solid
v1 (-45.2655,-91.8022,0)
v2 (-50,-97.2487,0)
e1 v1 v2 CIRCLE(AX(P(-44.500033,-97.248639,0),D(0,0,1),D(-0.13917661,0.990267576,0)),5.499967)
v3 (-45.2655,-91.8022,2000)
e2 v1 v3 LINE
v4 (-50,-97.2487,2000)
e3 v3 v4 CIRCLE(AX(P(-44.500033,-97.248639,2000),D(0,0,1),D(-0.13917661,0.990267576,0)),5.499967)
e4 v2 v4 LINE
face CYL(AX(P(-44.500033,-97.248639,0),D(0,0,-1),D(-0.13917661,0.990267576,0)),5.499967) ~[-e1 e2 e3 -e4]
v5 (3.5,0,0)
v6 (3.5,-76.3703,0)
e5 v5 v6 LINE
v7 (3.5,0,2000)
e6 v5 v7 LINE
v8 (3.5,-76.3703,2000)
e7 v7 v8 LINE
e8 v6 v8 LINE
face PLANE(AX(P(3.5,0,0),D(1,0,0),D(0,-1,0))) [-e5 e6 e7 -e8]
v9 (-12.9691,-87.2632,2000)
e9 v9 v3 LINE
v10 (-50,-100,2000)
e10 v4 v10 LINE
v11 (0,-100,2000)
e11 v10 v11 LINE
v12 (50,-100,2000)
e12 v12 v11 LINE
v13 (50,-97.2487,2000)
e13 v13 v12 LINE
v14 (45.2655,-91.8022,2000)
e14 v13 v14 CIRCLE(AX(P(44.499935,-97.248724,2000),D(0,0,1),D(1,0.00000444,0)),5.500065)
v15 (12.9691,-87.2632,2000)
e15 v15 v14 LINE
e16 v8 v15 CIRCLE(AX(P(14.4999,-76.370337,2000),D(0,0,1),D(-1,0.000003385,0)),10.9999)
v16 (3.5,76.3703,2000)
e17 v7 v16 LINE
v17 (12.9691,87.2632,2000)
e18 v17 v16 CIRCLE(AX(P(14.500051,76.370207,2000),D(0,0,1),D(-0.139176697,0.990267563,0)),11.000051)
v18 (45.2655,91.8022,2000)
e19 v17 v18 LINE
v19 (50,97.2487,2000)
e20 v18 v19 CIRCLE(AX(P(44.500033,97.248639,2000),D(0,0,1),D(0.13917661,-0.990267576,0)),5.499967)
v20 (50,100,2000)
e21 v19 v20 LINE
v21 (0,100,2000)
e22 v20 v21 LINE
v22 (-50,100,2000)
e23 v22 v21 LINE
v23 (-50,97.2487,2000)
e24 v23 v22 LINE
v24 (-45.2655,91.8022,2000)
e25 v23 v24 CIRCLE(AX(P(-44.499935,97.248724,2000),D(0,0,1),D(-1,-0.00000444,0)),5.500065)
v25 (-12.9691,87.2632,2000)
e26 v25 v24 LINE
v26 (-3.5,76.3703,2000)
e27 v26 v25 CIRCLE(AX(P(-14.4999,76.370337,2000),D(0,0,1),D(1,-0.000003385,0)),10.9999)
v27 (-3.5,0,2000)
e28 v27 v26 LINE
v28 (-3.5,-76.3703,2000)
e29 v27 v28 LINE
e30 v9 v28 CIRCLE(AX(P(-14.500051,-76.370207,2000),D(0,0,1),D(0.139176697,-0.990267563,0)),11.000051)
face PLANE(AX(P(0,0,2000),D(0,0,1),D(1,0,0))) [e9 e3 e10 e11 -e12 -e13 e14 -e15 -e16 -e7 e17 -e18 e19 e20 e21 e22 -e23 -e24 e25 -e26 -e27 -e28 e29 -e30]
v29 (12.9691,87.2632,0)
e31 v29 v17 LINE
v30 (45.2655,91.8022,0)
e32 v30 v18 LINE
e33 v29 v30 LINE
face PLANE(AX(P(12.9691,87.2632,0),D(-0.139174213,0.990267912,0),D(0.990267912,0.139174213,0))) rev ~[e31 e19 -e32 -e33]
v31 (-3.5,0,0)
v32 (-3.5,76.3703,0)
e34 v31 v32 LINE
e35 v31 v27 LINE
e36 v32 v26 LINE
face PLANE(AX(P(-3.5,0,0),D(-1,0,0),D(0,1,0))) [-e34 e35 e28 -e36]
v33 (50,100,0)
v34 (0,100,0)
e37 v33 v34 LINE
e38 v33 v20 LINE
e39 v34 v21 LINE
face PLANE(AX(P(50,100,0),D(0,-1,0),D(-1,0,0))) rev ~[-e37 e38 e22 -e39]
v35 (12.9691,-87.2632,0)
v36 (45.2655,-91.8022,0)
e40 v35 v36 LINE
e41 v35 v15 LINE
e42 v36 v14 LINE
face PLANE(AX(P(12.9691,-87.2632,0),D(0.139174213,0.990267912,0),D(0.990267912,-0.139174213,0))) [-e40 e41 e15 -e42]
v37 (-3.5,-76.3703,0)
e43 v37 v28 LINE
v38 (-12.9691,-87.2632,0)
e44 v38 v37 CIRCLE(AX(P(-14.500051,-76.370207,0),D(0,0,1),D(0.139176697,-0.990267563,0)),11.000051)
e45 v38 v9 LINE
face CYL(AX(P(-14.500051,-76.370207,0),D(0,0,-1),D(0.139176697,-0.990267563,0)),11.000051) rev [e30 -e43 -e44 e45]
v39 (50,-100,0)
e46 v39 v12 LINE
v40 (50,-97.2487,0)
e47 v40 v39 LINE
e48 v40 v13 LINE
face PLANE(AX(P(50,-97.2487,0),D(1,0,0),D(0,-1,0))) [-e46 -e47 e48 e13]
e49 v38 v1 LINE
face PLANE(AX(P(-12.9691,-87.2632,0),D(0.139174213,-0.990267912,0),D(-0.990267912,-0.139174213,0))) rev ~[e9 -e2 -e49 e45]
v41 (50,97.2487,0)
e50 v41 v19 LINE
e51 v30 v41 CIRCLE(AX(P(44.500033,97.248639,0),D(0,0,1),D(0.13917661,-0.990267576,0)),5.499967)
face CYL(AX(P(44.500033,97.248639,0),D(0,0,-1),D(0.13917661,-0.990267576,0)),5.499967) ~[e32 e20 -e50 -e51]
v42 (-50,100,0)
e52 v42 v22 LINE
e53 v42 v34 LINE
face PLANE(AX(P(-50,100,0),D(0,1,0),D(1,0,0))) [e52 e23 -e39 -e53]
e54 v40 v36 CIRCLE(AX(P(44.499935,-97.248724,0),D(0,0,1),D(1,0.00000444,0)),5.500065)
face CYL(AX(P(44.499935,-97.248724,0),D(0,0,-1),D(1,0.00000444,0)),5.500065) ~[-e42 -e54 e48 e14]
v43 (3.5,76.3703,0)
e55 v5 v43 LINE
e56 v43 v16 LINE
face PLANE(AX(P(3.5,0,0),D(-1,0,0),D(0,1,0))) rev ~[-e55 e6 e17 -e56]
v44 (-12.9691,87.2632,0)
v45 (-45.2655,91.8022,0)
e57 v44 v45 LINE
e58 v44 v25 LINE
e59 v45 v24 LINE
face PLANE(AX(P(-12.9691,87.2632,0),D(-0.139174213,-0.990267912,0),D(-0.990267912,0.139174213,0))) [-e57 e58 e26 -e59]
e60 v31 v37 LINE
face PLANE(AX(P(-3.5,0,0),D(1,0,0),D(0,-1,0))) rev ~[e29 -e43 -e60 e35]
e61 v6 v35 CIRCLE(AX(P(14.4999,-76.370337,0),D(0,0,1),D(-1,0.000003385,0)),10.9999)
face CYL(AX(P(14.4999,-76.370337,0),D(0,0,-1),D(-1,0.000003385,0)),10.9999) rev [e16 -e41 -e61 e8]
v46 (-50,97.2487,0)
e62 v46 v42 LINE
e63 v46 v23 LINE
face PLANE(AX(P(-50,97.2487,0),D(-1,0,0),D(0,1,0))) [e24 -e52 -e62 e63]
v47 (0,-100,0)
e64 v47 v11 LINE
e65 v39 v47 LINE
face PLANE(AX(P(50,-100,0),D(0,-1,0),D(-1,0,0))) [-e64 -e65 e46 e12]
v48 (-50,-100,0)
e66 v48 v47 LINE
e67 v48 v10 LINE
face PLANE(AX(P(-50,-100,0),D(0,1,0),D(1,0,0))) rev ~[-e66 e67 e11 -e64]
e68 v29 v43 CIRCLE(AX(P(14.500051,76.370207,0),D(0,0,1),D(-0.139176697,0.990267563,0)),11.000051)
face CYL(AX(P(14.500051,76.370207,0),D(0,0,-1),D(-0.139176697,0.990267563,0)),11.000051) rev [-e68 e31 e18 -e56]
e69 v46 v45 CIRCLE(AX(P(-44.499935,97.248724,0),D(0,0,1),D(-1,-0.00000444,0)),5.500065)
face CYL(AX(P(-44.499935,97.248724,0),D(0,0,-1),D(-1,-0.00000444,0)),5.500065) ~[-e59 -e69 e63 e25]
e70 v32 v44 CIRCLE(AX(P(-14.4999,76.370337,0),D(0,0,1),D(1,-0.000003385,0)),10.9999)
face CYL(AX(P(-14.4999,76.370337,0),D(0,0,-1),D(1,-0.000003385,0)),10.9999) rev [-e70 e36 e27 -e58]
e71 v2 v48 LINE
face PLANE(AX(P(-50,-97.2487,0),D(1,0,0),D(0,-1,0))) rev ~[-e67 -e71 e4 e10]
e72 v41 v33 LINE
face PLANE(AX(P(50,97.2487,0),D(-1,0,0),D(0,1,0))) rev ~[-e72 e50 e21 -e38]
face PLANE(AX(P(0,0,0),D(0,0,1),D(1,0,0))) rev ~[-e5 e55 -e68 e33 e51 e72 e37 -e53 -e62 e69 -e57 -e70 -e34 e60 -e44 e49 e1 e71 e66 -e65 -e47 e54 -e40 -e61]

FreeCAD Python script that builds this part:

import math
import FreeCAD as App
import Part
import Sketcher
from FreeCAD import Vector
Q = App.Units.Quantity

doc = App.newDocument("Part")
body = doc.addObject("PartDesign::Body", "Body")

sketch1 = doc.addObject("Sketcher::SketchObject", "Sketch")
body.addObject(sketch1)
sketch1.AttachmentSupport = (doc.XY_Plane, [""])
sketch1.MapMode = "FlatFace"
sketch1.addGeometry(Part.LineSegment(Vector(-3.5, 76.4, 0), Vector(-3.5, -76.4, 0)), False)
sketch1.addGeometry(Part.ArcOfCircle(Part.Circle(Vector(-14.5, -76.4, 0), Vector(0, 0, 1), 11), math.radians(-82), math.radians(0)), False)
sketch1.addGeometry(Part.LineSegment(Vector(-13, -87.3, 0), Vector(-45.3, -91.8, 0)), False)
sketch1.addGeometry(Part.ArcOfCircle(Part.Circle(Vector(-44.5, -97.2, 0), Vector(0, 0, 1), 5.5), math.radians(98), math.radians(180)), False)
sketch1.addGeometry(Part.LineSegment(Vector(-50, -97.2, 0), Vector(-50, -100, 0)), False)
sketch1.addGeometry(Part.LineSegment(Vector(-50, -100, 0), Vector(50, -100, 0)), False)
sketch1.addGeometry(Part.LineSegment(Vector(50, -100, 0), Vector(50, -97.2, 0)), False)
sketch1.addGeometry(Part.ArcOfCircle(Part.Circle(Vector(44.5, -97.2, 0), Vector(0, 0, 1), 5.5), math.radians(0), math.radians(82)), False)
sketch1.addGeometry(Part.LineSegment(Vector(45.3, -91.8, 0), Vector(13, -87.3, 0)), False)
sketch1.addGeometry(Part.ArcOfCircle(Part.Circle(Vector(14.5, -76.4, 0), Vector(0, 0, 1), 11), math.radians(180), math.radians(262)), False)
sketch1.addGeometry(Part.LineSegment(Vector(3.5, -76.4, 0), Vector(3.5, 76.4, 0)), False)
sketch1.addGeometry(Part.ArcOfCircle(Part.Circle(Vector(14.5, 76.4, 0), Vector(0, 0, 1), 11), math.radians(98), math.radians(180)), False)
sketch1.addGeometry(Part.LineSegment(Vector(13, 87.3, 0), Vector(45.3, 91.8, 0)), False)
sketch1.addGeometry(Part.ArcOfCircle(Part.Circle(Vector(44.5, 97.2, 0), Vector(0, 0, 1), 5.5), math.radians(-82), math.radians(0)), False)
sketch1.addGeometry(Part.LineSegment(Vector(50, 97.2, 0), Vector(50, 100, 0)), False)
sketch1.addGeometry(Part.LineSegment(Vector(50, 100, 0), Vector(-50, 100, 0)), False)
sketch1.addGeometry(Part.LineSegment(Vector(-50, 100, 0), Vector(-50, 97.2, 0)), False)
sketch1.addGeometry(Part.ArcOfCircle(Part.Circle(Vector(-44.5, 97.2, 0), Vector(0, 0, 1), 5.5), math.radians(180), math.radians(262)), False)
sketch1.addGeometry(Part.LineSegment(Vector(-45.3, 91.8, 0), Vector(-13, 87.3, 0)), False)
sketch1.addGeometry(Part.ArcOfCircle(Part.Circle(Vector(-14.5, 76.4, 0), Vector(0, 0, 1), 11), math.radians(0), math.radians(82)), False)
sketch1.addConstraint(Sketcher.Constraint("Tangent", 0, 2, 1, 2))
sketch1.addConstraint(Sketcher.Constraint("Tangent", 1, 1, 2, 1))
sketch1.addConstraint(Sketcher.Constraint("Tangent", 2, 2, 3, 1))
sketch1.addConstraint(Sketcher.Constraint("Tangent", 3, 2, 4, 1))
sketch1.addConstraint(Sketcher.Constraint("Coincident", 4, 2, 5, 1))
sketch1.addConstraint(Sketcher.Constraint("Coincident", 5, 2, 6, 1))
sketch1.addConstraint(Sketcher.Constraint("Tangent", 6, 2, 7, 1))
sketch1.addConstraint(Sketcher.Constraint("Tangent", 7, 2, 8, 1))
sketch1.addConstraint(Sketcher.Constraint("Tangent", 8, 2, 9, 2))
sketch1.addConstraint(Sketcher.Constraint("Tangent", 9, 1, 10, 1))
sketch1.addConstraint(Sketcher.Constraint("Tangent", 10, 2, 11, 2))
sketch1.addConstraint(Sketcher.Constraint("Tangent", 11, 1, 12, 1))
sketch1.addConstraint(Sketcher.Constraint("Tangent", 12, 2, 13, 1))
sketch1.addConstraint(Sketcher.Constraint("Tangent", 13, 2, 14, 1))
sketch1.addConstraint(Sketcher.Constraint("Coincident", 14, 2, 15, 1))
sketch1.addConstraint(Sketcher.Constraint("Coincident", 15, 2, 16, 1))
sketch1.addConstraint(Sketcher.Constraint("Tangent", 16, 2, 17, 1))
sketch1.addConstraint(Sketcher.Constraint("Tangent", 17, 2, 18, 1))
sketch1.addConstraint(Sketcher.Constraint("Tangent", 18, 2, 19, 2))
sketch1.addConstraint(Sketcher.Constraint("Tangent", 19, 1, 0, 1))
sketch1.addConstraint(Sketcher.Constraint("Vertical", 0))
sketch1.addConstraint(Sketcher.Constraint("Vertical", 4))
sketch1.addConstraint(Sketcher.Constraint("Horizontal", 5))
sketch1.addConstraint(Sketcher.Constraint("Vertical", 6))
sketch1.addConstraint(Sketcher.Constraint("Vertical", 10))
sketch1.addConstraint(Sketcher.Constraint("Vertical", 14))
sketch1.addConstraint(Sketcher.Constraint("Horizontal", 15))
sketch1.addConstraint(Sketcher.Constraint("Vertical", 16))
sketch1.addConstraint(Sketcher.Constraint("Equal", 3, 7))
sketch1.addConstraint(Sketcher.Constraint("Equal", 1, 9))
sketch1.addConstraint(Sketcher.Constraint("Equal", 9, 11))
sketch1.addConstraint(Sketcher.Constraint("Equal", 7, 13))
sketch1.addConstraint(Sketcher.Constraint("Equal", 13, 17))
sketch1.addConstraint(Sketcher.Constraint("Equal", 11, 19))
sketch1.addConstraint(Sketcher.Constraint("Symmetric", 1, 3, 11, 3, -1, 1))
sketch1.addConstraint(Sketcher.Constraint("Symmetric", 3, 3, 13, 3, -1, 1))
sketch1.addConstraint(Sketcher.Constraint("Symmetric", 7, 3, 17, 3, -1, 1))
sketch1.addConstraint(Sketcher.Constraint("Symmetric", 3, 3, 7, 3, -2))
sketch1.addConstraint(Sketcher.Constraint("Parallel", 8, 18))
sketch1.addConstraint(Sketcher.Constraint("Horizontal", 1, 3, 9, 3))
sketch1.addConstraint(Sketcher.Constraint("Equal", 6, 14))
sketch1.addConstraint(Sketcher.Constraint("Radius", 1, 11.0))
sketch1.addConstraint(Sketcher.Constraint("Radius", 3, 5.5))
sketch1.addConstraint(Sketcher.Constraint("DistanceX", 5, 1, 5, 2, 100.0))
sketch1.addConstraint(Sketcher.Constraint("DistanceY", 4, 2, -1, 1, 100.0))
sketch1.addConstraint(Sketcher.Constraint("DistanceX", 0, 2, -1, 1, 3.5))
sketch1.addConstraint(Sketcher.Constraint("Angle", 2, Q("-172 deg")))
sketch1.addConstraint(Sketcher.Constraint("DistanceY", 0, 2, 0, 1, 152.7406))
pad1 = doc.addObject("PartDesign::Pad", "Pad")
body.addObject(pad1)
pad1.Profile = sketch1
pad1.Length = 2000

doc.recompute()
